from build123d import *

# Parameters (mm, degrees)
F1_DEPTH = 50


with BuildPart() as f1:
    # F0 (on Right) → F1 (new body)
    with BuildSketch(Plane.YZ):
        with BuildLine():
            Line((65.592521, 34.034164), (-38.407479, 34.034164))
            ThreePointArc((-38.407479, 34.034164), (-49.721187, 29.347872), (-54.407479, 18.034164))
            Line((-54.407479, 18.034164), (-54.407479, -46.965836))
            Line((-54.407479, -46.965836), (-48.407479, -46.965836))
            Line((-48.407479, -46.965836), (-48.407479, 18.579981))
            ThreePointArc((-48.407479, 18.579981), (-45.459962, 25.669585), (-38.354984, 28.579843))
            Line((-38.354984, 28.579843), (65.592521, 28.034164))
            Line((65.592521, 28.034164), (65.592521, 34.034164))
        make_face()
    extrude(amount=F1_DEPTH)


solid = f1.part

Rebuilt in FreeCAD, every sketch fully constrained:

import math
import FreeCAD as App
import Part
import Sketcher

doc = App.newDocument("Part")
body = doc.addObject("PartDesign::Body", "Body")

sketch1 = body.newObject("Sketcher::SketchObject", "Sketch")
sketch1.AttachmentSupport = (doc.getObject("YZ_Plane"), [""])
sketch1.MapMode = "FlatFace"
sketch1.addGeometry([
    Part.LineSegment(App.Vector(66, 34, 0), App.Vector(-38, 34, 0)),
    Part.ArcOfCircle(Part.Circle(App.Vector(-38, 18, 0), App.Vector(0, 0, 1), 16), math.radians(90), math.radians(180)),
    Part.LineSegment(App.Vector(-54, 18, 0), App.Vector(-54, -47, 0)),
    Part.LineSegment(App.Vector(-54, -47, 0), App.Vector(-48, -47, 0)),
    Part.LineSegment(App.Vector(-48, -47, 0), App.Vector(-48, 19, 0)),
    Part.ArcOfCircle(Part.Circle(App.Vector(-38, 19, 0), App.Vector(0, 0, 1), 10), math.radians(90), math.radians(180)),
    Part.LineSegment(App.Vector(-38, 29, 0), App.Vector(66, 28, 0)),
    Part.LineSegment(App.Vector(66, 28, 0), App.Vector(66, 34, 0)),
], False)
sketch1.addConstraint([
    Sketcher.Constraint("Tangent", 0, 2, 1, 1),
    Sketcher.Constraint("Tangent", 1, 2, 2, 1),
    Sketcher.Constraint("Coincident", 2, 2, 3, 1),
    Sketcher.Constraint("Coincident", 3, 2, 4, 1),
    Sketcher.Constraint("Tangent", 4, 2, 5, 2),
    Sketcher.Constraint("Tangent", 5, 1, 6, 1),
    Sketcher.Constraint("Coincident", 6, 2, 7, 1),
    Sketcher.Constraint("Coincident", 7, 2, 0, 1),
    Sketcher.Constraint("Horizontal", 0),
    Sketcher.Constraint("Vertical", 2),
    Sketcher.Constraint("Horizontal", 3),
    Sketcher.Constraint("Vertical", 4),
    Sketcher.Constraint("Vertical", 7),
    Sketcher.Constraint("Vertical", 5, 3, 0, 2),
    Sketcher.Constraint("Equal", 3, 7),
    Sketcher.Constraint("Radius", 1, 16.000002),
    Sketcher.Constraint("Radius", 5, 9.999999),
    Sketcher.Constraint("DistanceX", 0, 2, 0, 1, 104.0),
    Sketcher.Constraint("DistanceY", 2, 2, 2, 1, 65.0),
    Sketcher.Constraint("DistanceY", 4, 1, 4, 2, 65.545817),
    Sketcher.Constraint("DistanceX", 5, 3, -1, 1, 38.40748),
    Sketcher.Constraint("DistanceY", -1, 1, 5, 3, 18.579981),
])
pad1 = body.newObject("PartDesign::Pad", "Pad")
pad1.Profile = sketch1
pad1.Length = 50

doc.recompute()
